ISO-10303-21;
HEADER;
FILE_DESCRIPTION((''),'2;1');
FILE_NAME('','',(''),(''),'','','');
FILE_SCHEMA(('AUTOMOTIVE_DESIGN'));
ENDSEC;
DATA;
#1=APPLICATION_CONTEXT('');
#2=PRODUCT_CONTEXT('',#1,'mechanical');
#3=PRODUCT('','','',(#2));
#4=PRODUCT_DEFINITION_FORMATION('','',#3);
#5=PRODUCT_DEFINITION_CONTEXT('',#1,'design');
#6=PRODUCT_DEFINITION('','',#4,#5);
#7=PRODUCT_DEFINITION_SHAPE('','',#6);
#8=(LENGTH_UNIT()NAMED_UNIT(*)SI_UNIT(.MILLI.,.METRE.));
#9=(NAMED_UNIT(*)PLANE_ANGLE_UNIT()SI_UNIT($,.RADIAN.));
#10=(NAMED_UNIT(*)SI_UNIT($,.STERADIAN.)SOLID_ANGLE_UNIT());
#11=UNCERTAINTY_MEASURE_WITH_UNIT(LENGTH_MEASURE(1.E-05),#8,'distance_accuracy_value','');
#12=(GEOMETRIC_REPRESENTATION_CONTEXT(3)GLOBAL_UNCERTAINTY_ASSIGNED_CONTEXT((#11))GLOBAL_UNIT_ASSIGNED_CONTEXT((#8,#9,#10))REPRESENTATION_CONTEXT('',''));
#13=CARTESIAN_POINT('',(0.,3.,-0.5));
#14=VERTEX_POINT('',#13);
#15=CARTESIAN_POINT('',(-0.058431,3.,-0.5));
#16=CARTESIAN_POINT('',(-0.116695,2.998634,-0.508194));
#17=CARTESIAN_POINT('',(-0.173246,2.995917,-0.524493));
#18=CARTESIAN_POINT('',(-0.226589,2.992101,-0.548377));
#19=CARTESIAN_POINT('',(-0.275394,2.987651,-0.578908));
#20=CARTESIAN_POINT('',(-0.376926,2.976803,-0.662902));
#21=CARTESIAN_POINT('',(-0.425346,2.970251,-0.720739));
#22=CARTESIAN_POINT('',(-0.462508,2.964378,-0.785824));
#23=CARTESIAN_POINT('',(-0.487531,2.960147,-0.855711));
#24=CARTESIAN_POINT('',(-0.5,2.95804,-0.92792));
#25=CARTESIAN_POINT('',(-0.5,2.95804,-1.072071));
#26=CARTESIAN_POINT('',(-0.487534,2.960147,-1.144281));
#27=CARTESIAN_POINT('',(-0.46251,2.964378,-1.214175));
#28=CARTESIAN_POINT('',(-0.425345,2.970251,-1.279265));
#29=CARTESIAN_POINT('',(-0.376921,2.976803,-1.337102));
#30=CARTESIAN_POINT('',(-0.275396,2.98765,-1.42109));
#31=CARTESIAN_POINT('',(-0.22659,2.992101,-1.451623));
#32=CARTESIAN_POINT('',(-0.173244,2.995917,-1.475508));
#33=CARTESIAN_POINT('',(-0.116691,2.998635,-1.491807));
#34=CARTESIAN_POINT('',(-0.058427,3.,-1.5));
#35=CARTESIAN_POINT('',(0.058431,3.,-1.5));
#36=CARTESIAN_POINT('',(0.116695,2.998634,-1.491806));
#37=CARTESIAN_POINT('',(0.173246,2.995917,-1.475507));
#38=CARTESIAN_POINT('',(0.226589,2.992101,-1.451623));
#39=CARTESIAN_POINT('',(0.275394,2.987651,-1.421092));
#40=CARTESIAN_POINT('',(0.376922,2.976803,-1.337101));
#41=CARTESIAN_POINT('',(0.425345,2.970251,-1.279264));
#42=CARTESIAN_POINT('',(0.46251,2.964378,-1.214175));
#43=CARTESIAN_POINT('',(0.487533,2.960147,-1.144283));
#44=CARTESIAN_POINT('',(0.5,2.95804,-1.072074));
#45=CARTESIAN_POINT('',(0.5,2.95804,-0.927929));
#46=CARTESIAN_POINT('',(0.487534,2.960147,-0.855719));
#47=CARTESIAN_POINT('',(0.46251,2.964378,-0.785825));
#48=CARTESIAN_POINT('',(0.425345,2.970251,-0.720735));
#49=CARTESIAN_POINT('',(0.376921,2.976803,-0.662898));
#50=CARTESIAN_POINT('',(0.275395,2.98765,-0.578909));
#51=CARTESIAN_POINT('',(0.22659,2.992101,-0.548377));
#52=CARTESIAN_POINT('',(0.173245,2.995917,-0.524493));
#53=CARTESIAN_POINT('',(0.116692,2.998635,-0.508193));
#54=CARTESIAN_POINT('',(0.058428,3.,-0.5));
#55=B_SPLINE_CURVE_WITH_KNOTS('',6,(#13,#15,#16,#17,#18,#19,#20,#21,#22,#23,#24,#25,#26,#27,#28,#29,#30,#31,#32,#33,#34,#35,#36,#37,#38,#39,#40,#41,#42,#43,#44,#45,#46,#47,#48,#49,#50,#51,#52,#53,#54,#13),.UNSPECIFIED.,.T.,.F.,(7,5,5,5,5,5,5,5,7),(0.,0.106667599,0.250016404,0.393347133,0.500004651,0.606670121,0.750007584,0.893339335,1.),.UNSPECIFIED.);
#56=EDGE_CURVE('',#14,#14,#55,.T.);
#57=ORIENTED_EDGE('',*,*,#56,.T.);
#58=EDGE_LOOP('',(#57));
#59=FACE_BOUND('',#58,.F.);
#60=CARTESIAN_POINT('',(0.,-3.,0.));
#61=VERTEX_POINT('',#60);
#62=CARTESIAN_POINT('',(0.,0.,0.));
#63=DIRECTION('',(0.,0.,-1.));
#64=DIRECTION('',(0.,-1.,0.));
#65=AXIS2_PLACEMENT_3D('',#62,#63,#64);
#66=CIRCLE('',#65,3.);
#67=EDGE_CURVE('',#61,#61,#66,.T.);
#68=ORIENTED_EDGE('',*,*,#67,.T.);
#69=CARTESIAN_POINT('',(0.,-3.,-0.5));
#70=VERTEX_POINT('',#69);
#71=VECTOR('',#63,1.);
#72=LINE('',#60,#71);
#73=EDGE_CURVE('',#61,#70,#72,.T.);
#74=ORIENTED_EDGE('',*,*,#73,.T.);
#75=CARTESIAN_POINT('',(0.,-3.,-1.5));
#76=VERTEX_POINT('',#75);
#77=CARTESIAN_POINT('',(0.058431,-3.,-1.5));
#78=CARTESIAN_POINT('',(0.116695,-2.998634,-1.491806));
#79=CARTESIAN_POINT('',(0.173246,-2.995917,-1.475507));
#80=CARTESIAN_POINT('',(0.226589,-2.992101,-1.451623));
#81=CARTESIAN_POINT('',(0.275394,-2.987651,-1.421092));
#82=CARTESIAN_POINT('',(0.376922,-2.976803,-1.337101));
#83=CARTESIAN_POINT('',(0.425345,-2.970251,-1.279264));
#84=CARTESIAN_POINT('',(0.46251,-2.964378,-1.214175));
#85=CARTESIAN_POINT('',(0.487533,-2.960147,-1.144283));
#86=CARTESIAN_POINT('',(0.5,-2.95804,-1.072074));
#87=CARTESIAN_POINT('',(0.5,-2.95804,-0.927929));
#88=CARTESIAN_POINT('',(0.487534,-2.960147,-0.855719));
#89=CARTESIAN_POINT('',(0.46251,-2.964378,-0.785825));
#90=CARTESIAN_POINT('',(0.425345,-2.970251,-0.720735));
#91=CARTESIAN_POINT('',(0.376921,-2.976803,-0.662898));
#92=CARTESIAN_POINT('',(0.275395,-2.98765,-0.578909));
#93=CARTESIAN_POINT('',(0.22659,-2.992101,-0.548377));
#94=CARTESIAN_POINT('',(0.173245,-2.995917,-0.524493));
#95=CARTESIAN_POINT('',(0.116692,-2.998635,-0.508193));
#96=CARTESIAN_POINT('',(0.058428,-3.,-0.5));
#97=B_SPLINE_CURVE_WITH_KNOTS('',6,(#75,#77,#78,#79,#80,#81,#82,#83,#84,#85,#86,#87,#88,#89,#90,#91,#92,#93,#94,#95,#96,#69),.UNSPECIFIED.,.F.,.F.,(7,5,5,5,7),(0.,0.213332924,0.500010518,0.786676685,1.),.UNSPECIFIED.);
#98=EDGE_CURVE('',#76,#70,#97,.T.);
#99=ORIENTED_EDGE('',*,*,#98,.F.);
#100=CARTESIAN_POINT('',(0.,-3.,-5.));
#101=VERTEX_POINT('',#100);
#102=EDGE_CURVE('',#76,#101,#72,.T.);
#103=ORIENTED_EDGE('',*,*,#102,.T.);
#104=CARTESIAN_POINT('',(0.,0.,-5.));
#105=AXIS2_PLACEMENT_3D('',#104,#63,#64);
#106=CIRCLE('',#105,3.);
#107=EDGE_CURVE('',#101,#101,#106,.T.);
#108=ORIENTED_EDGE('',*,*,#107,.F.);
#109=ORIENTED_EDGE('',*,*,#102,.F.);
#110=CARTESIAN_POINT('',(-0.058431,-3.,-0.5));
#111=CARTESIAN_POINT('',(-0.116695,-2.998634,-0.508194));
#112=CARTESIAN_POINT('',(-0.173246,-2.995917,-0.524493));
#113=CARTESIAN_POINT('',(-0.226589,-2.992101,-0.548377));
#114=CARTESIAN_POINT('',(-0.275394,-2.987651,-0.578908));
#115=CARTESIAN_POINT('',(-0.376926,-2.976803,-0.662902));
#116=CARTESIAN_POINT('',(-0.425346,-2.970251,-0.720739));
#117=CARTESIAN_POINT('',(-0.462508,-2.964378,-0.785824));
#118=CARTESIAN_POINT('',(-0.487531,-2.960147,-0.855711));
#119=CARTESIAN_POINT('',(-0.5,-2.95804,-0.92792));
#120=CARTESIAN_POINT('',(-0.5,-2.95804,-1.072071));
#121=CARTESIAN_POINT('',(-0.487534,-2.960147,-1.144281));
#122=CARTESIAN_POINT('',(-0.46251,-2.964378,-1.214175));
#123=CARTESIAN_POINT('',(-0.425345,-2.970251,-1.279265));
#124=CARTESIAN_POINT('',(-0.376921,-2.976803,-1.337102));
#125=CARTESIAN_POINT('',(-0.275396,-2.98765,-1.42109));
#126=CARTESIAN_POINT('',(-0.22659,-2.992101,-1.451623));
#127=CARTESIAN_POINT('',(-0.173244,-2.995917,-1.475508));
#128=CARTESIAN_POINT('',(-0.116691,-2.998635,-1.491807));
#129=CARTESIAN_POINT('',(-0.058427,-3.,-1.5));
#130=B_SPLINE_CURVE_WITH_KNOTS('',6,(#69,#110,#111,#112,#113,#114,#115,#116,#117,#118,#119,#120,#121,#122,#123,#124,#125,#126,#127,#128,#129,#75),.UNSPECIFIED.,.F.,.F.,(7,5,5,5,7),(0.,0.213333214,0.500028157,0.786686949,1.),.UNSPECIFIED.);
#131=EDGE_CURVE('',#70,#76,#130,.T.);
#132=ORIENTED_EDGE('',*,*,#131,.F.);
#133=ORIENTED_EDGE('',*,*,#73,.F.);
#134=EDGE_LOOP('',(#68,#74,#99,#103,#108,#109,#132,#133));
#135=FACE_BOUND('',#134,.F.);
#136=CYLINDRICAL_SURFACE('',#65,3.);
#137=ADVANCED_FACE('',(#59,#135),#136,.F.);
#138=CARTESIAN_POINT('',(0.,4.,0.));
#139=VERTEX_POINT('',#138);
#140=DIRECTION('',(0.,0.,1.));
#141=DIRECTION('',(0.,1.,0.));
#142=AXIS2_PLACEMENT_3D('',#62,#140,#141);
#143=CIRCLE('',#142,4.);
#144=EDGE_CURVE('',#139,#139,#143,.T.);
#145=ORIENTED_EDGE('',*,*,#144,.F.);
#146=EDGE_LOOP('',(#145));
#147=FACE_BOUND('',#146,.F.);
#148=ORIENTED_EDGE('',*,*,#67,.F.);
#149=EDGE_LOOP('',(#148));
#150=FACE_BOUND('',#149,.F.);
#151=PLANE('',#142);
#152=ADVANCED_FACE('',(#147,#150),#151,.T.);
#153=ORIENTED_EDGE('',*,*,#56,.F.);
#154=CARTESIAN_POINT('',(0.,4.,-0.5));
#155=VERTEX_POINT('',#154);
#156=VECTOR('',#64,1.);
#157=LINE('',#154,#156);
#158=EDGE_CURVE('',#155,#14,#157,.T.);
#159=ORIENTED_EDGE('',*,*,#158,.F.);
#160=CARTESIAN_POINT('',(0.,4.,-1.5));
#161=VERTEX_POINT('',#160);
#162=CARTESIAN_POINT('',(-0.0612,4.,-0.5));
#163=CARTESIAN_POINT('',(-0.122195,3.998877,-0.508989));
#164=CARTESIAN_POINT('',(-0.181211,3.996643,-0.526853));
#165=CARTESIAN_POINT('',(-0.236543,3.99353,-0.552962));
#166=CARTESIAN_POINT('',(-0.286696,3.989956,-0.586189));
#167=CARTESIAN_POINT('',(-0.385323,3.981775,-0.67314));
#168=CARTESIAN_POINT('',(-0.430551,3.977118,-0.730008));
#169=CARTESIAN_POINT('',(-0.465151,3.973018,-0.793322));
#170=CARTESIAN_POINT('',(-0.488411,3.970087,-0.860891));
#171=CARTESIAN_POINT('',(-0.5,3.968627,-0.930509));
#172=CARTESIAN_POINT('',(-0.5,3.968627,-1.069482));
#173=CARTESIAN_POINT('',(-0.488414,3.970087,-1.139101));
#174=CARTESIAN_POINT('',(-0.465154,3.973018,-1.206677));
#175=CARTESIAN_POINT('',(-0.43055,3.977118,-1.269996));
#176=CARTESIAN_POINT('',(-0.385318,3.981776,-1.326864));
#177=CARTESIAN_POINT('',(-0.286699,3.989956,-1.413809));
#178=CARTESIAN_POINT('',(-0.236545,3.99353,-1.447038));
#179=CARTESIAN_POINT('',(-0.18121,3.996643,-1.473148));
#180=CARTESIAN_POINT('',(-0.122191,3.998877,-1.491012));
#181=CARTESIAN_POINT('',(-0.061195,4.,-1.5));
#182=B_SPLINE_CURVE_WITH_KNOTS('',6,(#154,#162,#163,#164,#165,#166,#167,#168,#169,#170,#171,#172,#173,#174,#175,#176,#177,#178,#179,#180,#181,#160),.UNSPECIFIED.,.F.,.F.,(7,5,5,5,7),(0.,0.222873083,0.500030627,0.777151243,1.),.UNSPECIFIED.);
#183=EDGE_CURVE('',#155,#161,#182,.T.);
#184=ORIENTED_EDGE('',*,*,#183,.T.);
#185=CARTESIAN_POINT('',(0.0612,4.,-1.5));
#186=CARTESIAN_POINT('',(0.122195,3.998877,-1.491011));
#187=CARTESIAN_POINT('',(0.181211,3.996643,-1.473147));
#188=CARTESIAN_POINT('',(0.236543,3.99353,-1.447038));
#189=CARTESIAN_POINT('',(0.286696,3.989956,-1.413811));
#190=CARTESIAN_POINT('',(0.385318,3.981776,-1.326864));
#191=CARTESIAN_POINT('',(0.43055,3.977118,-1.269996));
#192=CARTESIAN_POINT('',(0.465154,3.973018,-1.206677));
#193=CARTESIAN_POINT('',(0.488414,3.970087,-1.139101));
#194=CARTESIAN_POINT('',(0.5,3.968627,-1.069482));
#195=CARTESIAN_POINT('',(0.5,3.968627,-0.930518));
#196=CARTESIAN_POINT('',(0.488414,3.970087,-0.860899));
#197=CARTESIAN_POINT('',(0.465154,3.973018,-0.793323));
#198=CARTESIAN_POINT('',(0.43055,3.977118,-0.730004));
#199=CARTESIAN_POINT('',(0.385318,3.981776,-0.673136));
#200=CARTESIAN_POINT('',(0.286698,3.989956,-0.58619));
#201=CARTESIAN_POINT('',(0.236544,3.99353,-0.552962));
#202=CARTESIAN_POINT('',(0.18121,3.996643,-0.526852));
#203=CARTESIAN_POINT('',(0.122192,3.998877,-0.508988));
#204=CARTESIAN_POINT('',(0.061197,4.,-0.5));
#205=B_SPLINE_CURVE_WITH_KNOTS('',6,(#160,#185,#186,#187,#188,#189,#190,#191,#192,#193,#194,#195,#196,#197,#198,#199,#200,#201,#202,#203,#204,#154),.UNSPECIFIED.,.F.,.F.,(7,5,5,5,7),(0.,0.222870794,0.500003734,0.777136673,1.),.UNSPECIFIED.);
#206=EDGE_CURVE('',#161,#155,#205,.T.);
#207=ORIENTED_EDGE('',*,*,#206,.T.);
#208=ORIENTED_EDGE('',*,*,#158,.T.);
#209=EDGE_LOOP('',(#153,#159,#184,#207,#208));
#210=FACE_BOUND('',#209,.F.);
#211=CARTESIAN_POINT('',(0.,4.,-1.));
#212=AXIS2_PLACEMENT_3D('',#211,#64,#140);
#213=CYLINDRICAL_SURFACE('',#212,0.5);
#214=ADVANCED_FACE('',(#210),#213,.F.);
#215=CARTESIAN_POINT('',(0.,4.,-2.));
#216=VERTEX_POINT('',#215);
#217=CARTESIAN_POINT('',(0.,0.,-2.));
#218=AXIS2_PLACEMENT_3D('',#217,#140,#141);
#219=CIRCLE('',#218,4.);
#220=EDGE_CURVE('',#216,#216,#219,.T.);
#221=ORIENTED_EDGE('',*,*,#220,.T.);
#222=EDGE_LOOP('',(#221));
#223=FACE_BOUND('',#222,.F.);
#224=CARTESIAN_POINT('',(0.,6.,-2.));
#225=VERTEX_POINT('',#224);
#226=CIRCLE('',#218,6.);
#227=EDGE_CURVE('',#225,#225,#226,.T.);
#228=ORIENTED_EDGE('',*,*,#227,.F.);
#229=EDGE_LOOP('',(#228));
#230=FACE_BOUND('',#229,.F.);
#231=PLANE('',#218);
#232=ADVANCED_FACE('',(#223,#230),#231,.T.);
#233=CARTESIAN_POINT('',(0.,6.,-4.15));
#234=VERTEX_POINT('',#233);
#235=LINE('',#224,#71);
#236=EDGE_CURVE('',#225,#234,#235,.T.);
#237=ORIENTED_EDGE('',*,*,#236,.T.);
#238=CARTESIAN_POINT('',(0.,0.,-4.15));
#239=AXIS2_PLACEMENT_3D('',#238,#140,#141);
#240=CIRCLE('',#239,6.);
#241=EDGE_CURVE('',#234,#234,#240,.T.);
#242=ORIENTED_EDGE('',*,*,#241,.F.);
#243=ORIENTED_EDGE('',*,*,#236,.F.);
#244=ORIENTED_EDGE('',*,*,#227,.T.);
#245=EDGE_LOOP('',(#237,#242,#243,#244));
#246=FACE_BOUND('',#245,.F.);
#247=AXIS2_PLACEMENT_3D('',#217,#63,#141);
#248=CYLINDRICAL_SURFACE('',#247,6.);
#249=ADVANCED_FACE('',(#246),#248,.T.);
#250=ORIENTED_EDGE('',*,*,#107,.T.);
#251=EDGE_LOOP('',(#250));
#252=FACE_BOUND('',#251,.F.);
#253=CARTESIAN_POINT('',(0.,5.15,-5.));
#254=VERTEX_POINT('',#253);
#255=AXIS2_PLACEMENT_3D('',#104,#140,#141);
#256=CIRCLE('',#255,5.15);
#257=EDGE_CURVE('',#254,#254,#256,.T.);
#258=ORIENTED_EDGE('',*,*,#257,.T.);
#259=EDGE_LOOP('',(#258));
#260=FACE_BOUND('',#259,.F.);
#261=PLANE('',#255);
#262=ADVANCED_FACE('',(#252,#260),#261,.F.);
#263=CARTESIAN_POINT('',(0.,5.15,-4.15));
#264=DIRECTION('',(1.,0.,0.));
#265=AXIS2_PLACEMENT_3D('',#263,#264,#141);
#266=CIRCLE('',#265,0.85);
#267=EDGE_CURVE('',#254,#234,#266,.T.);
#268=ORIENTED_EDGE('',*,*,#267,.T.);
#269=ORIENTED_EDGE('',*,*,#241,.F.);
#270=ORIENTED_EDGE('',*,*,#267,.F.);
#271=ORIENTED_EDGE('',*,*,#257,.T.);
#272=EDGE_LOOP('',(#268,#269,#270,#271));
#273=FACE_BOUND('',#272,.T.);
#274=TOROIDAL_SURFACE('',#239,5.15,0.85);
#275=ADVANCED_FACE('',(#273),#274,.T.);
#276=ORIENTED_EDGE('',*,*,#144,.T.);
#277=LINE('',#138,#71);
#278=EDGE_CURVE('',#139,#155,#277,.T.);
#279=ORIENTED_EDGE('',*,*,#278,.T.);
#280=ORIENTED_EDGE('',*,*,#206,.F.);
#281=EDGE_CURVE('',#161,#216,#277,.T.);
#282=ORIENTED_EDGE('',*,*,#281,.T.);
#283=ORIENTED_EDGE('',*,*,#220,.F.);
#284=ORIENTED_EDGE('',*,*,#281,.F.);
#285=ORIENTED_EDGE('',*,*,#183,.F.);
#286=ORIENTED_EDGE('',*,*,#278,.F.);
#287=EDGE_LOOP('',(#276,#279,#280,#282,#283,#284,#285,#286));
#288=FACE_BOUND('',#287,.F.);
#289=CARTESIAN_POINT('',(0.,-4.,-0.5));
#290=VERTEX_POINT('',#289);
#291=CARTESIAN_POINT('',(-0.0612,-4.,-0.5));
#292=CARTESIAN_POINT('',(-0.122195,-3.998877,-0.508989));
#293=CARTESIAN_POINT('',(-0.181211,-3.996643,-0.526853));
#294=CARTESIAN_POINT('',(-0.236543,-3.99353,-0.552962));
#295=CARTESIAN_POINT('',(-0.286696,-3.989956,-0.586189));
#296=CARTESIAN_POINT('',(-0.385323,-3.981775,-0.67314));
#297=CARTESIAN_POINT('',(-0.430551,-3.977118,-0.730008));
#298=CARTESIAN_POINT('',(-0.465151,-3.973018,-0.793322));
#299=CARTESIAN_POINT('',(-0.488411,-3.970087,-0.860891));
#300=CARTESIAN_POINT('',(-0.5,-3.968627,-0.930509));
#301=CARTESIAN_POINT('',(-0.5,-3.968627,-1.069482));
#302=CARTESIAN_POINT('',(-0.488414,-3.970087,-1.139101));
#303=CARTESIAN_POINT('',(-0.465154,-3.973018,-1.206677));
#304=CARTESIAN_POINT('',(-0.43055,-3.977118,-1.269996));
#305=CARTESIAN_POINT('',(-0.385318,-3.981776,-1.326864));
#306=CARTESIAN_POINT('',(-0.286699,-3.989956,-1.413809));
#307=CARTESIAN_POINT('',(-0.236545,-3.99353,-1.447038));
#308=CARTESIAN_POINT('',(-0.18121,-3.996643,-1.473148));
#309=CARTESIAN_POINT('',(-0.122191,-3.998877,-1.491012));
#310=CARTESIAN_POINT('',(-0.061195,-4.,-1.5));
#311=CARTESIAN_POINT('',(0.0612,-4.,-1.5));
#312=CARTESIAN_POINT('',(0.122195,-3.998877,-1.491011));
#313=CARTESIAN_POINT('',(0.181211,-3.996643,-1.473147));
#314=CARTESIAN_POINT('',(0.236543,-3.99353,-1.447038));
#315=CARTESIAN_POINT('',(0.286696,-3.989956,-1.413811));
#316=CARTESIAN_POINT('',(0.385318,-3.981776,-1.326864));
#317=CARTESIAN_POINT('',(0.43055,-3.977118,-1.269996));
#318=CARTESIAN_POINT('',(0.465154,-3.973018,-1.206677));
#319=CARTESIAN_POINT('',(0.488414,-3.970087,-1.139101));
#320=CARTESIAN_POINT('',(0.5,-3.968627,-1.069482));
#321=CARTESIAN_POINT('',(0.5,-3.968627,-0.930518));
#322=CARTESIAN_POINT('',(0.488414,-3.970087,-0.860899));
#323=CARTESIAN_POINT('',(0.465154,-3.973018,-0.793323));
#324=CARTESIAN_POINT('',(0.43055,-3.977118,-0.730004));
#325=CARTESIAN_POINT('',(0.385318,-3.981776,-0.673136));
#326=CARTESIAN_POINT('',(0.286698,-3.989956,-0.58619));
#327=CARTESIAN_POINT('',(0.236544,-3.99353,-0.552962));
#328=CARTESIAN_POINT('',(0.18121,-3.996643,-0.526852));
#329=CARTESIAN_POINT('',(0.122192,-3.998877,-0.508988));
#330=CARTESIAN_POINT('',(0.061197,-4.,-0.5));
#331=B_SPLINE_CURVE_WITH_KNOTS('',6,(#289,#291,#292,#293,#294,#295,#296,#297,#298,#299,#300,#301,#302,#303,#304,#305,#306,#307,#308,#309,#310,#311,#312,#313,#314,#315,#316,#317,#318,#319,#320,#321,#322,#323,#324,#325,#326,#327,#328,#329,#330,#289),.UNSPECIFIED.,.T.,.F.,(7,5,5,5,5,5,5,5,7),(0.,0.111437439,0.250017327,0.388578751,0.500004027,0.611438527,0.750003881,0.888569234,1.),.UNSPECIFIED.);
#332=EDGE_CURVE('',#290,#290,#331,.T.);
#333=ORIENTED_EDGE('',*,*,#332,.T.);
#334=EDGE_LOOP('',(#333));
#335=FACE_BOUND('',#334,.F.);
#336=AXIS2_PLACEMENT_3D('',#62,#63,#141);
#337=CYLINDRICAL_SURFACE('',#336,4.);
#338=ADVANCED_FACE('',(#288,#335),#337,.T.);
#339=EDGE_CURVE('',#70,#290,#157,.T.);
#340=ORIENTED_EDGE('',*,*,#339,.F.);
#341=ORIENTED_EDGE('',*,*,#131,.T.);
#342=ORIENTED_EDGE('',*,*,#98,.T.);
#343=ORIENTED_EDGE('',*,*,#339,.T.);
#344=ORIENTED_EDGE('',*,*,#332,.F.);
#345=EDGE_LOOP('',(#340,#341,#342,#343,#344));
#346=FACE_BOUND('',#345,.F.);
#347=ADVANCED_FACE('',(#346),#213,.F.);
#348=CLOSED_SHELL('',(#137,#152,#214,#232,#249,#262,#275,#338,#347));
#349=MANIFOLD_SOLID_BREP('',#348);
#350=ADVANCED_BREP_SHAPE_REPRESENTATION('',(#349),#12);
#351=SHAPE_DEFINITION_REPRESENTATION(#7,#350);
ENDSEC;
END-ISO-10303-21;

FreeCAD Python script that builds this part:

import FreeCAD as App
import Part
import Sketcher
from FreeCAD import Vector


def edges_at(feature, points):
    """Names of the edges that pass closest to the given points."""
    edges = feature.Shape.Edges
    near = lambda p: min(range(len(edges)), key=lambda i: edges[i].distToShape(Part.Vertex(*p))[0])
    return sorted({f"Edge{near(p) + 1}" for p in points})

doc = App.newDocument("Part")
body = doc.addObject("PartDesign::Body", "Body")

# Sketch on YZ plane
sketch1 = body.newObject("Sketcher::SketchObject", "Sketch")
sketch1.AttachmentSupport = (doc.getObject("YZ_Plane"), [""])
sketch1.MapMode = "FlatFace"
sketch1.addGeometry([
    Part.LineSegment(Vector(4, 0, 0), Vector(0, 0, 0)),  # 0
    Part.LineSegment(Vector(0, 0, 0), Vector(0, -5, 0)),  # 1
    Part.LineSegment(Vector(0, -5, 0), Vector(6, -5, 0)),  # 2
    Part.LineSegment(Vector(6, -5, 0), Vector(6, -2, 0)),  # 3
    Part.LineSegment(Vector(6, -2, 0), Vector(4, -2, 0)),  # 4
    Part.LineSegment(Vector(4, -2, 0), Vector(4, 0, 0)),  # 5
], False)
sketch1.addConstraint([
    Sketcher.Constraint("Coincident", 0, 2, 1, 1),
    Sketcher.Constraint("Coincident", 1, 2, 2, 1),
    Sketcher.Constraint("Coincident", 2, 2, 3, 1),
    Sketcher.Constraint("Coincident", 3, 2, 4, 1),
    Sketcher.Constraint("Coincident", 4, 2, 5, 1),
    Sketcher.Constraint("Coincident", 5, 2, 0, 1),
    Sketcher.Constraint("Horizontal", 0),
    Sketcher.Constraint("Vertical", 1),
    Sketcher.Constraint("Horizontal", 2),
    Sketcher.Constraint("Vertical", 3),
    Sketcher.Constraint("Horizontal", 4),
    Sketcher.Constraint("Vertical", 5),
    Sketcher.Constraint("Coincident", 0, 2, -1, 1),
    Sketcher.Constraint("Equal", 4, 5),
    Sketcher.Constraint("DistanceX", 4, 2, 4, 1, 2.0),
    Sketcher.Constraint("DistanceY", 1, 2, 1, 1, 5.0),
    Sketcher.Constraint("DistanceX", 0, 2, 0, 1, 4.0),
])
revolution = body.newObject("PartDesign::Revolution", "Revolution")
revolution.Profile = sketch1
revolution.ReferenceAxis = (sketch1, ["V_Axis"])
revolution.Angle = 360

# Sketch on XY plane
sketch2 = body.newObject("Sketcher::SketchObject", "Sketch001")
sketch2.AttachmentSupport = (doc.getObject("XY_Plane"), [""])
sketch2.MapMode = "FlatFace"
sketch2.addGeometry(Part.Circle(Vector(0, 0, 0), Vector(0, 0, 1), 3), False)
sketch2.addConstraint([
    Sketcher.Constraint("Coincident", 0, 3, -1, 1),
    Sketcher.Constraint("Diameter", 0, 6.0),
])
doc.recompute()
hole = body.newObject("PartDesign::Hole", "Hole")
hole.Profile = sketch2
hole.ThreadType = "None"
hole.Diameter = 6
hole.DepthType = "Dimension"
hole.Depth = 5
hole.DrillPoint = "Flat"
doc.recompute()

fillet = body.newObject("PartDesign::Fillet", "Fillet")
fillet.Base = (hole, edges_at(hole, [(0, -6, -5)]))
fillet.Radius = 0.85

# Sketch on XZ plane
sketch3 = body.newObject("Sketcher::SketchObject", "Sketch002")
sketch3.AttachmentSupport = (doc.getObject("XZ_Plane"), [""])
sketch3.MapMode = "FlatFace"
sketch3.AttachmentOffset = App.Placement(Vector(0, 0, -4), App.Rotation())
sketch3.addGeometry(Part.Circle(Vector(0, -1, 0), Vector(0, 0, 1), 0.5), False)
sketch3.addConstraint([
    Sketcher.Constraint("PointOnObject", 0, 3, -2),
    Sketcher.Constraint("Diameter", 0, 1.0),
    Sketcher.Constraint("DistanceY", 0, 3, -1, 1, 1.0),
])
doc.recompute()
hole2 = body.newObject("PartDesign::Hole", "Hole001")
hole2.Profile = sketch3
hole2.ThreadType = "None"
hole2.Diameter = 1
hole2.DepthType = "ThroughAll"
hole2.Reversed = True

doc.recompute()
